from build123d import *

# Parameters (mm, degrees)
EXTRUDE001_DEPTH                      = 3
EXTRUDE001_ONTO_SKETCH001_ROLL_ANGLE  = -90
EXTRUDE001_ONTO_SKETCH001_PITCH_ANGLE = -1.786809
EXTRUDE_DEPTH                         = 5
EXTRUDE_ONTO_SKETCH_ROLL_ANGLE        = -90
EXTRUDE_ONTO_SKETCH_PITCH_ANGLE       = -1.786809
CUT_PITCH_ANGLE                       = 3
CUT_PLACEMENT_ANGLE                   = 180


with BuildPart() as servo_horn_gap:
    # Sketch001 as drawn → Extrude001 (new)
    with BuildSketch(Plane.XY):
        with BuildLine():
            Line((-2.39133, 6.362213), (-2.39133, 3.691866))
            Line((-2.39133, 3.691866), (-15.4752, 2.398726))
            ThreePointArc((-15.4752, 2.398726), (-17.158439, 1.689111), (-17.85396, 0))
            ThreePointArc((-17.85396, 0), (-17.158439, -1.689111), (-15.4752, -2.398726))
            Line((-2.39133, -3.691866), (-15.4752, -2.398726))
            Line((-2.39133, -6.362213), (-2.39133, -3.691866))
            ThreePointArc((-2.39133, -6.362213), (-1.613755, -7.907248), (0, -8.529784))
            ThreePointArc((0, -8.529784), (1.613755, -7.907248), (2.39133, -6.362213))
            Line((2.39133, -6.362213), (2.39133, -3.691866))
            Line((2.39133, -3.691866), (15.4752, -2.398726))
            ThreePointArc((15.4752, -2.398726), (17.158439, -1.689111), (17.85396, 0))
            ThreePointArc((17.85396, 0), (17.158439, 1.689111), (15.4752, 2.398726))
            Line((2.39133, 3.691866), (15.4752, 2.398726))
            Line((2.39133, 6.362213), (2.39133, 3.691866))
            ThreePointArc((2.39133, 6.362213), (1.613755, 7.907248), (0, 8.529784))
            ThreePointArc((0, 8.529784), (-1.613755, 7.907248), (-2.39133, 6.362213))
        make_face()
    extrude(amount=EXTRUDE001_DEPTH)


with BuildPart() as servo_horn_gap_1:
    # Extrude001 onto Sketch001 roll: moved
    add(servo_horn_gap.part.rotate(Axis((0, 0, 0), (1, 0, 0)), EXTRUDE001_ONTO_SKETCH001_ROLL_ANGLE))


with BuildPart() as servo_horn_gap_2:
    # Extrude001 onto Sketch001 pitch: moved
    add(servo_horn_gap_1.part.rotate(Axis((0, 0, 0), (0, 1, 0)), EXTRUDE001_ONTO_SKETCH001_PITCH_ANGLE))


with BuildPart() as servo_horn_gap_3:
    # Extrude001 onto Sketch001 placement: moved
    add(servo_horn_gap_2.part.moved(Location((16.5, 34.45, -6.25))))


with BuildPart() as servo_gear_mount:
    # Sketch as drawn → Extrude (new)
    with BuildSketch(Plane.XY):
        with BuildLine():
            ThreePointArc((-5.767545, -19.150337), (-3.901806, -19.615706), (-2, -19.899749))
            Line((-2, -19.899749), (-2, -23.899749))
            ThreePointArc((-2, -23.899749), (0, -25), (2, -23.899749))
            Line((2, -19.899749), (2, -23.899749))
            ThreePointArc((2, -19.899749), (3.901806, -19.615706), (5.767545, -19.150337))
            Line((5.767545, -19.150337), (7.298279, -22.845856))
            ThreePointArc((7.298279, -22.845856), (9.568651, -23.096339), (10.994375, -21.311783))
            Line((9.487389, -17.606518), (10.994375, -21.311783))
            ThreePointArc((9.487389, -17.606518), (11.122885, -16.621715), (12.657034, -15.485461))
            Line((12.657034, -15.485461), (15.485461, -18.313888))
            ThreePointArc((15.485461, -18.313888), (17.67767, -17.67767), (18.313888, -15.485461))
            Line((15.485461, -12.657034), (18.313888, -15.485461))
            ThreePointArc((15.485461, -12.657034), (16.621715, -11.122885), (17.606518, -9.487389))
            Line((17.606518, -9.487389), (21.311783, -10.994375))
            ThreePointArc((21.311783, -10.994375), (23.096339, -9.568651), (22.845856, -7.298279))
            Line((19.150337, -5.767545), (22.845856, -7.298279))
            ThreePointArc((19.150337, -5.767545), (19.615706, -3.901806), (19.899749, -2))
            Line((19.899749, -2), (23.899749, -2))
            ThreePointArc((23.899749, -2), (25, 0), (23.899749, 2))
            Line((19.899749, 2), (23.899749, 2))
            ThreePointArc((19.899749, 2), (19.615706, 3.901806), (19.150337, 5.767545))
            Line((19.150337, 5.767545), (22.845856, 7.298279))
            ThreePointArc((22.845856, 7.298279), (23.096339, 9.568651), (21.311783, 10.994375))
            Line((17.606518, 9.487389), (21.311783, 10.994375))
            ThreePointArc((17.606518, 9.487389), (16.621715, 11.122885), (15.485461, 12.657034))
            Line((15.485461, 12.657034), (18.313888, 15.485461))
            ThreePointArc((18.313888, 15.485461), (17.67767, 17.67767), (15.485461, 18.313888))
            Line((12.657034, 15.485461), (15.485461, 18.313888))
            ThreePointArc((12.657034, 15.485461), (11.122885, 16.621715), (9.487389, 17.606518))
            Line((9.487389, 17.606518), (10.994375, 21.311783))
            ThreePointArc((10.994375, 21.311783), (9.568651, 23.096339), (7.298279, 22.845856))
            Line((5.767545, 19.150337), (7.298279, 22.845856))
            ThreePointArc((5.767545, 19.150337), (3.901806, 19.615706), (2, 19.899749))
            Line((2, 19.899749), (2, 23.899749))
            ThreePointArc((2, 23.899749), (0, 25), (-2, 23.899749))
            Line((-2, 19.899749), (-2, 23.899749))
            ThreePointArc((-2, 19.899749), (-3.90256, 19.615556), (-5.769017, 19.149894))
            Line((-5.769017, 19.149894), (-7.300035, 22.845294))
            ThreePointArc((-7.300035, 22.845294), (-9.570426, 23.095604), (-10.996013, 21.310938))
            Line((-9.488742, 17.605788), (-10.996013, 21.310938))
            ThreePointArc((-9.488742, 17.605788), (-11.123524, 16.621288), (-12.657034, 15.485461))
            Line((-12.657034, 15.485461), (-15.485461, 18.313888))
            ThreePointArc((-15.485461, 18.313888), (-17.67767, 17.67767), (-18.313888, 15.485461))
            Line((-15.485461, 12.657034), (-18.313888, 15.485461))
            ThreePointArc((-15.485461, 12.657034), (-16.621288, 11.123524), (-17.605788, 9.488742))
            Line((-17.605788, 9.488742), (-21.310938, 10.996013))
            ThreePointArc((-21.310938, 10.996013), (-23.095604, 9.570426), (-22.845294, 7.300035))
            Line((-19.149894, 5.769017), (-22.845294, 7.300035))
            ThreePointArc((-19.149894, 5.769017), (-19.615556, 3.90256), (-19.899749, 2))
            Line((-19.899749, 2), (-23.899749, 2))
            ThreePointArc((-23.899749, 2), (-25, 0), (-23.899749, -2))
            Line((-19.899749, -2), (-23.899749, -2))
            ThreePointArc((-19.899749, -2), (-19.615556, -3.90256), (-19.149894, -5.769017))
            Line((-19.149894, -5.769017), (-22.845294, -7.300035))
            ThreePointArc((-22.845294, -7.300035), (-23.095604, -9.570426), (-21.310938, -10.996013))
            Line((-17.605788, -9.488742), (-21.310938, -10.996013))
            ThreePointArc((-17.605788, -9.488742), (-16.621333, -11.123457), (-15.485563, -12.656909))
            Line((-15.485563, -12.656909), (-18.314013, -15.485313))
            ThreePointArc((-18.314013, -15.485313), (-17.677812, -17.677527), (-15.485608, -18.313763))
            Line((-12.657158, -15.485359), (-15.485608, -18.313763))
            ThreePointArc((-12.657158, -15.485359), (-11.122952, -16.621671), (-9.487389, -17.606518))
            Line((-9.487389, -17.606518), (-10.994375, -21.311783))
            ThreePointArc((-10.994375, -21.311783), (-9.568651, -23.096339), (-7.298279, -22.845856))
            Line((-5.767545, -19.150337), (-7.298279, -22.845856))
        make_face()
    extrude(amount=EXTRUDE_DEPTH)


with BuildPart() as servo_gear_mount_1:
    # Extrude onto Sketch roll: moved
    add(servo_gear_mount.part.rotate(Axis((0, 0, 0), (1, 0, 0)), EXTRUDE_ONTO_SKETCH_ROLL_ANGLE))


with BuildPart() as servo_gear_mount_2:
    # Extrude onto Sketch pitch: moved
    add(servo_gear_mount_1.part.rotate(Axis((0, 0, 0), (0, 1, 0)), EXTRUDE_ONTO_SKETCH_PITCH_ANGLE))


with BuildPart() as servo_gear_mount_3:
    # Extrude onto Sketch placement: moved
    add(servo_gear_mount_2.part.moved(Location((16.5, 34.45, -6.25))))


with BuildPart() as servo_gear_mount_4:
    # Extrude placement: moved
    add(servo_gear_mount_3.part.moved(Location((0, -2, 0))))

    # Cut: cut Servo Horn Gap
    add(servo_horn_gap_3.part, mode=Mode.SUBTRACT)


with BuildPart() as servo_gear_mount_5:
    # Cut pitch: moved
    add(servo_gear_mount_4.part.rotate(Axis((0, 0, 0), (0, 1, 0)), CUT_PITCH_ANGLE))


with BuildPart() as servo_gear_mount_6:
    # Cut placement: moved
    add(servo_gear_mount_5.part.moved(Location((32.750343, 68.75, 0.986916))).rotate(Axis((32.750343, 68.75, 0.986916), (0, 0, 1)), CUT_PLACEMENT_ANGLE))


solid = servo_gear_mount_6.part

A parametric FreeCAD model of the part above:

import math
import FreeCAD as App
import Part
import Sketcher

doc = App.newDocument("Part")
params = doc.addObject("Spreadsheet::Sheet", "Params")
for row, (alias, value) in enumerate([
    ("pad1_length", "3 mm"),
    ("sketch2_width", "4 mm"),
    ("sketch2_width2", "4 mm"),
    ("sketch2_width3", "4 mm"),
    ("sketch2_width4", "4 mm"),
    ("sketch2_height", "4 mm"),
    ("pad2_length", "5 mm"),
], start=1):
    params.set(f"A{row}", alias)
    params.set(f"B{row}", "=" + value)
    params.setAlias(f"B{row}", alias)

body = doc.addObject("PartDesign::Body", "Body")

sketch1 = body.newObject("Sketcher::SketchObject", "Sketch")
sketch1.AttachmentSupport = (doc.getObject("XY_Plane"), [""])
sketch1.MapMode = "FlatFace"
sketch1.addGeometry(Part.LineSegment(App.Vector(-2.39133, 6.362213, 0), App.Vector(-2.39133, 3.691866, 0)), False)
sketch1.addGeometry(Part.LineSegment(App.Vector(-2.39133, 3.691866, 0), App.Vector(-15.4752, 2.398726, 0)), False)
sketch1.addGeometry(Part.ArcOfCircle(Part.Circle(App.Vector(-15.45515, 0, 0), App.Vector(0, 0, 1), 2.39881), math.radians(90.478893), math.radians(180.000003)), False)
sketch1.addGeometry(Part.ArcOfCircle(Part.Circle(App.Vector(-15.45515, 0, 0), App.Vector(0, 0, 1), 2.39881), math.radians(179.999997), math.radians(269.521107)), False)
sketch1.addGeometry(Part.LineSegment(App.Vector(-15.4752, -2.398726, 0), App.Vector(-2.39133, -3.691866, 0)), False)
sketch1.addGeometry(Part.LineSegment(App.Vector(-2.39133, -3.691866, 0), App.Vector(-2.39133, -6.362213, 0)), False)
sketch1.addGeometry(Part.ArcOfCircle(Part.Circle(App.Vector(0.000001, -6.126904, 0), App.Vector(0, 0, 1), 2.40288), math.radians(-174.380132), math.radians(-90.00002)), False)
sketch1.addGeometry(Part.ArcOfCircle(Part.Circle(App.Vector(-0.000001, -6.126904, 0), App.Vector(0, 0, 1), 2.40288), math.radians(-89.99998), math.radians(-5.619868)), False)
sketch1.addGeometry(Part.LineSegment(App.Vector(2.39133, -6.362213, 0), App.Vector(2.39133, -3.691866, 0)), False)
sketch1.addGeometry(Part.LineSegment(App.Vector(2.39133, -3.691866, 0), App.Vector(15.4752, -2.398726, 0)), False)
sketch1.addGeometry(Part.ArcOfCircle(Part.Circle(App.Vector(15.45515, 0, 0), App.Vector(0, 0, 1), 2.39881), math.radians(-89.521107), math.radians(0.000003)), False)
sketch1.addGeometry(Part.ArcOfCircle(Part.Circle(App.Vector(15.45515, 0, 0), App.Vector(0, 0, 1), 2.39881), math.radians(-0.000003), math.radians(89.521107)), False)
sketch1.addGeometry(Part.LineSegment(App.Vector(15.4752, 2.398726, 0), App.Vector(2.39133, 3.691866, 0)), False)
sketch1.addGeometry(Part.LineSegment(App.Vector(2.39133, 3.691866, 0), App.Vector(2.39133, 6.362213, 0)), False)
sketch1.addGeometry(Part.ArcOfCircle(Part.Circle(App.Vector(-0.000001, 6.126904, 0), App.Vector(0, 0, 1), 2.40288), math.radians(5.619868), math.radians(89.99998)), False)
sketch1.addGeometry(Part.ArcOfCircle(Part.Circle(App.Vector(0.000001, 6.126904, 0), App.Vector(0, 0, 1), 2.40288), math.radians(90.00002), math.radians(174.380132)), False)
sketch1.addConstraint(Sketcher.Constraint("Coincident", 0, 2, 1, 1))
sketch1.addConstraint(Sketcher.Constraint("Coincident", 1, 2, 2, 1))
sketch1.addConstraint(Sketcher.Constraint("Tangent", 2, 2, 3, 1))
sketch1.addConstraint(Sketcher.Constraint("Coincident", 3, 2, 4, 1))
sketch1.addConstraint(Sketcher.Constraint("Coincident", 4, 2, 5, 1))
sketch1.addConstraint(Sketcher.Constraint("Coincident", 5, 2, 6, 1))
sketch1.addConstraint(Sketcher.Constraint("Tangent", 6, 2, 7, 1))
sketch1.addConstraint(Sketcher.Constraint("Coincident", 7, 2, 8, 1))
sketch1.addConstraint(Sketcher.Constraint("Coincident", 8, 2, 9, 1))
sketch1.addConstraint(Sketcher.Constraint("Coincident", 9, 2, 10, 1))
sketch1.addConstraint(Sketcher.Constraint("Tangent", 10, 2, 11, 1))
sketch1.addConstraint(Sketcher.Constraint("Coincident", 11, 2, 12, 1))
sketch1.addConstraint(Sketcher.Constraint("Coincident", 12, 2, 13, 1))
sketch1.addConstraint(Sketcher.Constraint("Coincident", 13, 2, 14, 1))
sketch1.addConstraint(Sketcher.Constraint("Tangent", 14, 2, 15, 1))
sketch1.addConstraint(Sketcher.Constraint("Coincident", 15, 2, 0, 1))
sketch1.addConstraint(Sketcher.Constraint("Vertical", 0))
sketch1.addConstraint(Sketcher.Constraint("Vertical", 5))
sketch1.addConstraint(Sketcher.Constraint("Vertical", 8))
sketch1.addConstraint(Sketcher.Constraint("Vertical", 13))
sketch1.addConstraint(Sketcher.Constraint("Equal", 2, 3))
sketch1.addConstraint(Sketcher.Constraint("Equal", 6, 7))
sketch1.addConstraint(Sketcher.Constraint("Equal", 3, 10))
sketch1.addConstraint(Sketcher.Constraint("Equal", 10, 11))
sketch1.addConstraint(Sketcher.Constraint("Equal", 7, 14))
sketch1.addConstraint(Sketcher.Constraint("Equal", 14, 15))
sketch1.addConstraint(Sketcher.Constraint("Symmetric", 2, 3, 10, 3, -1, 1))
sketch1.addConstraint(Sketcher.Constraint("Symmetric", 6, 3, 14, 3, -1, 1))
sketch1.addConstraint(Sketcher.Constraint("Symmetric", 0, 2, 8, 2, -1, 1))
sketch1.addConstraint(Sketcher.Constraint("Symmetric", 4, 2, 12, 2, -1, 1))
sketch1.addConstraint(Sketcher.Constraint("Symmetric", 5, 2, 7, 2, -2))
sketch1.addConstraint(Sketcher.Constraint("Symmetric", 3, 2, 9, 2, -2))
sketch1.addConstraint(Sketcher.Constraint("PointOnObject", 2, 2, -1))
sketch1.addConstraint(Sketcher.Constraint("PointOnObject", 6, 2, -2))
sketch1.addConstraint(Sketcher.Constraint("PointOnObject", 10, 2, -1))
sketch1.addConstraint(Sketcher.Constraint("PointOnObject", 14, 2, -2))
sketch1.addConstraint(Sketcher.Constraint("Parallel", 1, 9))
sketch1.addConstraint(Sketcher.Constraint("Parallel", 4, 12))
sketch1.addConstraint(Sketcher.Constraint("Horizontal", 4, 2, 8, 2))
sketch1.addConstraint(Sketcher.Constraint("Radius", 2, 2.39881))
sketch1.addConstraint(Sketcher.Constraint("Radius", 6, 2.40288))
sketch1.addConstraint(Sketcher.Constraint("DistanceX", 1, 2, -1, 1, 15.4752))
sketch1.addConstraint(Sketcher.Constraint("DistanceX", 2, 3, 10, 3, 30.910301))
sketch1.addConstraint(Sketcher.Constraint("Distance", 1, 13.147618))
sketch1.addConstraint(Sketcher.Constraint("DistanceY", 0, 2, 0, 1, 2.670347))
sketch1.addConstraint(Sketcher.Constraint("DistanceX", 0, 2, -1, 1, 2.39133))
pad1 = body.newObject("PartDesign::Pad", "Pad")
pad1.Profile = sketch1
pad1.setExpression("Length", "Params.pad1_length")
body2 = doc.addObject("PartDesign::Body", "Body001")
doc.recompute()

body.Placement = App.Placement(App.Vector(0, 0, 0), App.Rotation(App.Vector(1, 0, 0), 270))
boolean = body2.newObject("PartDesign::Boolean", "Boolean")
boolean.Type = "Fuse"
boolean.addObjects([body])
body3 = doc.addObject("PartDesign::Body", "Body002")
doc.recompute()

body2.Placement = App.Placement(App.Vector(0, 0, 0), App.Rotation(App.Vector(0, 1, 0), 358.213191))
boolean2 = body3.newObject("PartDesign::Boolean", "Boolean001")
boolean2.Type = "Fuse"
boolean2.addObjects([body2])
body4 = doc.addObject("PartDesign::Body", "Body003")
doc.recompute()

body3.Placement = App.Placement(App.Vector(16.5, 34.45, -6.25), App.Rotation(App.Vector(0, 0, 1), 0))
boolean3 = body4.newObject("PartDesign::Boolean", "Boolean002")
boolean3.Type = "Fuse"
boolean3.addObjects([body3])
body5 = doc.addObject("PartDesign::Body", "Body004")

sketch2 = body5.newObject("Sketcher::SketchObject", "Sketch001")
sketch2.AttachmentSupport = (doc.getObject("XY_Plane004"), [""])
sketch2.MapMode = "FlatFace"
sketch2.addGeometry(Part.ArcOfCircle(Part.Circle(App.Vector(-0.000013, -0.000083, 0), App.Vector(0, 0, 1), 19.999916), math.radians(-106.760863), math.radians(-95.739158)), False)
sketch2.addGeometry(Part.LineSegment(App.Vector(-2, -19.899749, 0), App.Vector(-2, -23.899749, 0)), False)
sketch2.addGeometry(Part.ArcOfCircle(Part.Circle(App.Vector(0, -22.632107, 0), App.Vector(0, 0, 1), 2.367893), math.radians(-147.632628), math.radians(-32.367372)), False)
sketch2.addGeometry(Part.LineSegment(App.Vector(2, -23.899749, 0), App.Vector(2, -19.899749, 0)), False)
sketch2.addGeometry(Part.ArcOfCircle(Part.Circle(App.Vector(0.000013, -0.000083, 0), App.Vector(0, 0, 1), 19.999916), math.radians(-84.260842), math.radians(-73.239137)), False)
sketch2.addGeometry(Part.LineSegment(App.Vector(5.767545, -19.150337, 0), App.Vector(7.298279, -22.845856, 0)), False)
sketch2.addGeometry(Part.ArcOfCircle(Part.Circle(App.Vector(8.660932, -20.909341, 0), App.Vector(0, 0, 1), 2.367893), math.radians(-125.132612), math.radians(-9.785379)), False)
sketch2.addGeometry(Part.LineSegment(App.Vector(10.994375, -21.311783, 0), App.Vector(9.487389, -17.606518, 0)), False)
sketch2.addGeometry(Part.ArcOfCircle(Part.Circle(App.Vector(-0.00012, 0.000176, 0), App.Vector(0, 0, 1), 20.000213), math.radians(-61.681635), math.radians(-50.739223)), False)
sketch2.addGeometry(Part.LineSegment(App.Vector(12.657034, -15.485461, 0), App.Vector(15.485461, -18.313888, 0)), False)
sketch2.addGeometry(Part.ArcOfCircle(Part.Circle(App.Vector(16.003318, -16.003318, 0), App.Vector(0, 0, 1), 2.367891), math.radians(-102.632665), math.radians(12.632665)), False)
sketch2.addGeometry(Part.LineSegment(App.Vector(18.313888, -15.485461, 0), App.Vector(15.485461, -12.657034, 0)), False)
sketch2.addGeometry(Part.ArcOfCircle(Part.Circle(App.Vector(-0.000176, 0.00012, 0), App.Vector(0, 0, 1), 20.000213), math.radians(-39.260777), math.radians(-28.318365)), False)
sketch2.addGeometry(Part.LineSegment(App.Vector(17.606518, -9.487389, 0), App.Vector(21.311783, -10.994375, 0)), False)
sketch2.addGeometry(Part.ArcOfCircle(Part.Circle(App.Vector(20.909341, -8.660932, 0), App.Vector(0, 0, 1), 2.367893), math.radians(-80.214621), math.radians(35.132612)), False)
sketch2.addGeometry(Part.LineSegment(App.Vector(22.845856, -7.298279, 0), App.Vector(19.150337, -5.767545, 0)), False)
sketch2.addGeometry(Part.ArcOfCircle(Part.Circle(App.Vector(0.000083, -0.000013, 0), App.Vector(0, 0, 1), 19.999916), math.radians(-16.760863), math.radians(-5.739158)), False)
sketch2.addGeometry(Part.LineSegment(App.Vector(19.899749, -2, 0), App.Vector(23.899749, -2, 0)), False)
sketch2.addGeometry(Part.ArcOfCircle(Part.Circle(App.Vector(22.632107, 0, 0), App.Vector(0, 0, 1), 2.367893), math.radians(-57.632628), math.radians(57.632628)), False)
sketch2.addGeometry(Part.LineSegment(App.Vector(23.899749, 2, 0), App.Vector(19.899749, 2, 0)), False)
sketch2.addGeometry(Part.ArcOfCircle(Part.Circle(App.Vector(0.000083, 0.000013, 0), App.Vector(0, 0, 1), 19.999916), math.radians(5.739158), math.radians(16.760863)), False)
sketch2.addGeometry(Part.LineSegment(App.Vector(19.150337, 5.767545, 0), App.Vector(22.845856, 7.298279, 0)), False)
sketch2.addGeometry(Part.ArcOfCircle(Part.Circle(App.Vector(20.909341, 8.660932, 0), App.Vector(0, 0, 1), 2.367893), math.radians(-35.132612), math.radians(80.214621)), False)
sketch2.addGeometry(Part.LineSegment(App.Vector(21.311783, 10.994375, 0), App.Vector(17.606518, 9.487389, 0)), False)
sketch2.addGeometry(Part.ArcOfCircle(Part.Circle(App.Vector(-0.000176, -0.00012, 0), App.Vector(0, 0, 1), 20.000213), math.radians(28.318365), math.radians(39.260777)), False)
sketch2.addGeometry(Part.LineSegment(App.Vector(15.485461, 12.657034, 0), App.Vector(18.313888, 15.485461, 0)), False)
sketch2.addGeometry(Part.ArcOfCircle(Part.Circle(App.Vector(16.003318, 16.003318, 0), App.Vector(0, 0, 1), 2.367891), math.radians(-12.632665), math.radians(102.632665)), False)
sketch2.addGeometry(Part.LineSegment(App.Vector(15.485461, 18.313888, 0), App.Vector(12.657034, 15.485461, 0)), False)
sketch2.addGeometry(Part.ArcOfCircle(Part.Circle(App.Vector(-0.00012, -0.000176, 0), App.Vector(0, 0, 1), 20.000213), math.radians(50.739223), math.radians(61.681635)), False)
sketch2.addGeometry(Part.LineSegment(App.Vector(9.487389, 17.606518, 0), App.Vector(10.994375, 21.311783, 0)), False)
sketch2.addGeometry(Part.ArcOfCircle(Part.Circle(App.Vector(8.660932, 20.909341, 0), App.Vector(0, 0, 1), 2.367893), math.radians(9.785379), math.radians(125.132612)), False)
sketch2.addGeometry(Part.LineSegment(App.Vector(7.298279, 22.845856, 0), App.Vector(5.767545, 19.150337, 0)), False)
sketch2.addGeometry(Part.ArcOfCircle(Part.Circle(App.Vector(0.000013, 0.000083, 0), App.Vector(0, 0, 1), 19.999916), math.radians(73.239137), math.radians(84.260842)), False)
sketch2.addGeometry(Part.LineSegment(App.Vector(2, 19.899749, 0), App.Vector(2, 23.899749, 0)), False)
sketch2.addGeometry(Part.ArcOfCircle(Part.Circle(App.Vector(0, 22.632107, 0), App.Vector(0, 0, 1), 2.367893), math.radians(32.367372), math.radians(147.632628)), False)
sketch2.addGeometry(Part.LineSegment(App.Vector(-2, 23.899749, 0), App.Vector(-2, 19.899749, 0)), False)
sketch2.addGeometry(Part.ArcOfCircle(Part.Circle(App.Vector(-0.000007, 0.000042, 0), App.Vector(0, 0, 1), 19.999957), math.radians(95.739163), math.radians(106.76525)), False)
sketch2.addGeometry(Part.LineSegment(App.Vector(-5.769017, 19.149894, 0), App.Vector(-7.300035, 22.845294, 0)), False)
sketch2.addGeometry(Part.ArcOfCircle(Part.Circle(App.Vector(-8.66254, 20.908676, 0), App.Vector(0, 0, 1), 2.367891), math.radians(54.871736), math.radians(170.219052)), False)
sketch2.addGeometry(Part.LineSegment(App.Vector(-10.996013, 21.310938, 0), App.Vector(-9.488742, 17.605788, 0)), False)
sketch2.addGeometry(Part.ArcOfCircle(Part.Circle(App.Vector(0.000007, -0.000015, 0), App.Vector(0, 0, 1), 20.000016), math.radians(118.322705), math.radians(129.260819)), False)
sketch2.addGeometry(Part.LineSegment(App.Vector(-12.657034, 15.485461, 0), App.Vector(-15.485461, 18.313888, 0)), False)
sketch2.addGeometry(Part.ArcOfCircle(Part.Circle(App.Vector(-16.003318, 16.003318, 0), App.Vector(0, 0, 1), 2.367891), math.radians(77.367335), math.radians(192.632665)), False)
sketch2.addGeometry(Part.LineSegment(App.Vector(-18.313888, 15.485461, 0), App.Vector(-15.485461, 12.657034, 0)), False)
sketch2.addGeometry(Part.ArcOfCircle(Part.Circle(App.Vector(0.000015, -0.000007, 0), App.Vector(0, 0, 1), 20.000016), math.radians(140.739181), math.radians(151.677295)), False)
sketch2.addGeometry(Part.LineSegment(App.Vector(-17.605788, 9.488742, 0), App.Vector(-21.310938, 10.996013, 0)), False)
sketch2.addGeometry(Part.ArcOfCircle(Part.Circle(App.Vector(-20.908676, 8.66254, 0), App.Vector(0, 0, 1), 2.367891), math.radians(99.780948), math.radians(215.128264)), False)
sketch2.addGeometry(Part.LineSegment(App.Vector(-22.845294, 7.300035, 0), App.Vector(-19.149894, 5.769017, 0)), False)
sketch2.addGeometry(Part.ArcOfCircle(Part.Circle(App.Vector(-0.000042, 0.000007, 0), App.Vector(0, 0, 1), 19.999957), math.radians(163.23475), math.radians(174.260837)), False)
sketch2.addGeometry(Part.LineSegment(App.Vector(-19.899749, 2, 0), App.Vector(-23.899749, 2, 0)), False)
sketch2.addGeometry(Part.ArcOfCircle(Part.Circle(App.Vector(-22.632107, 0, 0), App.Vector(0, 0, 1), 2.367893), math.radians(122.367372), math.radians(237.632628)), False)
sketch2.addGeometry(Part.LineSegment(App.Vector(-23.899749, -2, 0), App.Vector(-19.899749, -2, 0)), False)
sketch2.addGeometry(Part.ArcOfCircle(Part.Circle(App.Vector(-0.000042, -0.000007, 0), App.Vector(0, 0, 1), 19.999957), math.radians(-174.260837), math.radians(-163.23475)), False)
sketch2.addGeometry(Part.LineSegment(App.Vector(-19.149894, -5.769017, 0), App.Vector(-22.845294, -7.300035, 0)), False)
sketch2.addGeometry(Part.ArcOfCircle(Part.Circle(App.Vector(-20.908676, -8.66254, 0), App.Vector(0, 0, 1), 2.367891), math.radians(144.871736), math.radians(260.219052)), False)
sketch2.addGeometry(Part.LineSegment(App.Vector(-21.310938, -10.996013, 0), App.Vector(-17.605788, -9.488742, 0)), False)
sketch2.addGeometry(Part.ArcOfCircle(Part.Circle(App.Vector(-0.000022, -0.000016, 0), App.Vector(0, 0, 1), 19.999973), math.radians(-151.677305), math.radians(-140.739629)), False)
sketch2.addGeometry(Part.LineSegment(App.Vector(-15.485563, -12.656909, 0), App.Vector(-18.314013, -15.485313, 0)), False)
sketch2.addGeometry(Part.ArcOfCircle(Part.Circle(App.Vector(-16.003446, -16.003188, 0), App.Vector(0, 0, 1), 2.367893), math.radians(167.366903), math.radians(282.632185)), False)
sketch2.addGeometry(Part.LineSegment(App.Vector(-15.485608, -18.313763, 0), App.Vector(-12.657158, -15.485359, 0)), False)
sketch2.addGeometry(Part.ArcOfCircle(Part.Circle(App.Vector(0.000007, 0.000002, 0), App.Vector(0, 0, 1), 20.000006), math.radians(-129.261301), math.radians(-118.318316)), False)
sketch2.addGeometry(Part.LineSegment(App.Vector(-9.487389, -17.606518, 0), App.Vector(-10.994375, -21.311783, 0)), False)
sketch2.addGeometry(Part.ArcOfCircle(Part.Circle(App.Vector(-8.660932, -20.909341, 0), App.Vector(0, 0, 1), 2.367893), math.radians(-170.214621), math.radians(-54.867388)), False)
sketch2.addGeometry(Part.LineSegment(App.Vector(-7.298279, -22.845856, 0), App.Vector(-5.767545, -19.150337, 0)), False)
sketch2.addConstraint(Sketcher.Constraint("Coincident", 0, 2, 1, 1))
sketch2.addConstraint(Sketcher.Constraint("Coincident", 1, 2, 2, 1))
sketch2.addConstraint(Sketcher.Constraint("Coincident", 2, 2, 3, 1))
sketch2.addConstraint(Sketcher.Constraint("Coincident", 3, 2, 4, 1))
sketch2.addConstraint(Sketcher.Constraint("Coincident", 4, 2, 5, 1))
sketch2.addConstraint(Sketcher.Constraint("Coincident", 5, 2, 6, 1))
sketch2.addConstraint(Sketcher.Constraint("Coincident", 6, 2, 7, 1))
sketch2.addConstraint(Sketcher.Constraint("Coincident", 7, 2, 8, 1))
sketch2.addConstraint(Sketcher.Constraint("Coincident", 8, 2, 9, 1))
sketch2.addConstraint(Sketcher.Constraint("Coincident", 9, 2, 10, 1))
sketch2.addConstraint(Sketcher.Constraint("Coincident", 10, 2, 11, 1))
sketch2.addConstraint(Sketcher.Constraint("Coincident", 11, 2, 12, 1))
sketch2.addConstraint(Sketcher.Constraint("Coincident", 12, 2, 13, 1))
sketch2.addConstraint(Sketcher.Constraint("Coincident", 13, 2, 14, 1))
sketch2.addConstraint(Sketcher.Constraint("Coincident", 14, 2, 15, 1))
sketch2.addConstraint(Sketcher.Constraint("Coincident", 15, 2, 16, 1))
sketch2.addConstraint(Sketcher.Constraint("Coincident", 16, 2, 17, 1))
sketch2.addConstraint(Sketcher.Constraint("Coincident", 17, 2, 18, 1))
sketch2.addConstraint(Sketcher.Constraint("Coincident", 18, 2, 19, 1))
sketch2.addConstraint(Sketcher.Constraint("Coincident", 19, 2, 20, 1))
sketch2.addConstraint(Sketcher.Constraint("Coincident", 20, 2, 21, 1))
sketch2.addConstraint(Sketcher.Constraint("Coincident", 21, 2, 22, 1))
sketch2.addConstraint(Sketcher.Constraint("Coincident", 22, 2, 23, 1))
sketch2.addConstraint(Sketcher.Constraint("Coincident", 23, 2, 24, 1))
sketch2.addConstraint(Sketcher.Constraint("Coincident", 24, 2, 25, 1))
sketch2.addConstraint(Sketcher.Constraint("Coincident", 25, 2, 26, 1))
sketch2.addConstraint(Sketcher.Constraint("Coincident", 26, 2, 27, 1))
sketch2.addConstraint(Sketcher.Constraint("Coincident", 27, 2, 28, 1))
sketch2.addConstraint(Sketcher.Constraint("Coincident", 28, 2, 29, 1))
sketch2.addConstraint(Sketcher.Constraint("Coincident", 29, 2, 30, 1))
sketch2.addConstraint(Sketcher.Constraint("Coincident", 30, 2, 31, 1))
sketch2.addConstraint(Sketcher.Constraint("Coincident", 31, 2, 32, 1))
sketch2.addConstraint(Sketcher.Constraint("Coincident", 32, 2, 33, 1))
sketch2.addConstraint(Sketcher.Constraint("Coincident", 33, 2, 34, 1))
sketch2.addConstraint(Sketcher.Constraint("Coincident", 34, 2, 35, 1))
sketch2.addConstraint(Sketcher.Constraint("Coincident", 35, 2, 36, 1))
sketch2.addConstraint(Sketcher.Constraint("Coincident", 36, 2, 37, 1))
sketch2.addConstraint(Sketcher.Constraint("Coincident", 37, 2, 38, 1))
sketch2.addConstraint(Sketcher.Constraint("Coincident", 38, 2, 39, 1))
sketch2.addConstraint(Sketcher.Constraint("Coincident", 39, 2, 40, 1))
sketch2.addConstraint(Sketcher.Constraint("Coincident", 40, 2, 41, 1))
sketch2.addConstraint(Sketcher.Constraint("Coincident", 41, 2, 42, 1))
sketch2.addConstraint(Sketcher.Constraint("Coincident", 42, 2, 43, 1))
sketch2.addConstraint(Sketcher.Constraint("Coincident", 43, 2, 44, 1))
sketch2.addConstraint(Sketcher.Constraint("Coincident", 44, 2, 45, 1))
sketch2.addConstraint(Sketcher.Constraint("Coincident", 45, 2, 46, 1))
sketch2.addConstraint(Sketcher.Constraint("Coincident", 46, 2, 47, 1))
sketch2.addConstraint(Sketcher.Constraint("Coincident", 47, 2, 48, 1))
sketch2.addConstraint(Sketcher.Constraint("Coincident", 48, 2, 49, 1))
sketch2.addConstraint(Sketcher.Constraint("Coincident", 49, 2, 50, 1))
sketch2.addConstraint(Sketcher.Constraint("Coincident", 50, 2, 51, 1))
sketch2.addConstraint(Sketcher.Constraint("Coincident", 51, 2, 52, 1))
sketch2.addConstraint(Sketcher.Constraint("Coincident", 52, 2, 53, 1))
sketch2.addConstraint(Sketcher.Constraint("Coincident", 53, 2, 54, 1))
sketch2.addConstraint(Sketcher.Constraint("Coincident", 54, 2, 55, 1))
sketch2.addConstraint(Sketcher.Constraint("Coincident", 55, 2, 56, 1))
sketch2.addConstraint(Sketcher.Constraint("Coincident", 56, 2, 57, 1))
sketch2.addConstraint(Sketcher.Constraint("Coincident", 57, 2, 58, 1))
sketch2.addConstraint(Sketcher.Constraint("Coincident", 58, 2, 59, 1))
sketch2.addConstraint(Sketcher.Constraint("Coincident", 59, 2, 60, 1))
sketch2.addConstraint(Sketcher.Constraint("Coincident", 60, 2, 61, 1))
sketch2.addConstraint(Sketcher.Constraint("Coincident", 61, 2, 62, 1))
sketch2.addConstraint(Sketcher.Constraint("Coincident", 62, 2, 63, 1))
sketch2.addConstraint(Sketcher.Constraint("Coincident", 63, 2, 0, 1))
sketch2.addConstraint(Sketcher.Constraint("Vertical", 1))
sketch2.addConstraint(Sketcher.Constraint("Vertical", 3))
sketch2.addConstraint(Sketcher.Constraint("Horizontal", 17))
sketch2.addConstraint(Sketcher.Constraint("Horizontal", 19))
sketch2.addConstraint(Sketcher.Constraint("Vertical", 33))
sketch2.addConstraint(Sketcher.Constraint("Vertical", 35))
sketch2.addConstraint(Sketcher.Constraint("Horizontal", 49))
sketch2.addConstraint(Sketcher.Constraint("Horizontal", 51))
sketch2.addConstraint(Sketcher.Constraint("Coincident", 60, 3, -1, 1))
sketch2.addConstraint(Sketcher.Constraint("PointOnObject", 2, 3, -2))
sketch2.addConstraint(Sketcher.Constraint("PointOnObject", 18, 3, -1))
sketch2.addConstraint(Sketcher.Constraint("PointOnObject", 34, 3, -2))
sketch2.addConstraint(Sketcher.Constraint("PointOnObject", 50, 3, -1))
sketch2.addConstraint(Sketcher.Constraint("DistanceX", 17, 1, 17, 2, 4.0))
sketch2.addConstraint(Sketcher.Constraint("DistanceX", 19, 2, 19, 1, 4.0))
sketch2.addConstraint(Sketcher.Constraint("DistanceX", 49, 2, 49, 1, 4.0))
sketch2.addConstraint(Sketcher.Constraint("DistanceX", 51, 1, 51, 2, 4.0))
sketch2.addConstraint(Sketcher.Constraint("DistanceY", 1, 2, 1, 1, 4.0))
sketch2.addConstraint(Sketcher.Constraint("DistanceY", 3, 1, 3, 2, 4.0))
sketch2.addConstraint(Sketcher.Constraint("DistanceY", 33, 1, 33, 2, 4.0))
sketch2.addConstraint(Sketcher.Constraint("DistanceY", 35, 2, 35, 1, 4.0))
sketch2.addConstraint(Sketcher.Constraint("Distance", 5, 4.000001))
sketch2.addConstraint(Sketcher.Constraint("Distance", 7, 3.999999))
sketch2.addConstraint(Sketcher.Constraint("Distance", 9, 4.0))
sketch2.addConstraint(Sketcher.Constraint("Distance", 11, 4.0))
sketch2.addConstraint(Sketcher.Constraint("Distance", 13, 3.999999))
sketch2.addConstraint(Sketcher.Constraint("Distance", 15, 4.000001))
sketch2.addConstraint(Sketcher.Constraint("Distance", 21, 4.000001))
sketch2.addConstraint(Sketcher.Constraint("Distance", 23, 3.999999))
sketch2.addConstraint(Sketcher.Constraint("Distance", 25, 4.0))
sketch2.addConstraint(Sketcher.Constraint("Distance", 27, 4.0))
sketch2.addConstraint(Sketcher.Constraint("Distance", 29, 3.999999))
sketch2.addConstraint(Sketcher.Constraint("Distance", 31, 4.000001))
sketch2.addConstraint(Sketcher.Constraint("Distance", 37, 4.0))
sketch2.addConstraint(Sketcher.Constraint("Distance", 39, 4.0))
sketch2.addConstraint(Sketcher.Constraint("Distance", 41, 4.0))
sketch2.addConstraint(Sketcher.Constraint("Distance", 43, 4.0))
sketch2.addConstraint(Sketcher.Constraint("Distance", 45, 4.0))
sketch2.addConstraint(Sketcher.Constraint("Distance", 47, 4.0))
sketch2.addConstraint(Sketcher.Constraint("Distance", 53, 4.0))
sketch2.addConstraint(Sketcher.Constraint("Distance", 55, 4.0))
sketch2.addConstraint(Sketcher.Constraint("Distance", 57, 4.0))
sketch2.addConstraint(Sketcher.Constraint("Distance", 59, 4.0))
sketch2.addConstraint(Sketcher.Constraint("Distance", 61, 3.999999))
sketch2.addConstraint(Sketcher.Constraint("Distance", 63, 4.000001))
sketch2.addConstraint(Sketcher.Constraint("DistanceX", 0, 2, -1, 1, 2.0))
sketch2.addConstraint(Sketcher.Constraint("DistanceX", -1, 1, 2, 2, 2.0))
sketch2.addConstraint(Sketcher.Constraint("DistanceY", 16, 2, -1, 1, 2.0))
sketch2.addConstraint(Sketcher.Constraint("DistanceY", -1, 1, 18, 2, 2.0))
sketch2.addConstraint(Sketcher.Constraint("DistanceX", -1, 1, 32, 2, 2.0))
sketch2.addConstraint(Sketcher.Constraint("DistanceX", 34, 2, -1, 1, 2.0))
sketch2.addConstraint(Sketcher.Constraint("DistanceY", -1, 1, 48, 2, 2.0))
sketch2.addConstraint(Sketcher.Constraint("DistanceY", 50, 2, -1, 1, 2.0))
sketch2.addConstraint(Sketcher.Constraint("Radius", 10, 2.367891))
sketch2.addConstraint(Sketcher.Constraint("Radius", 26, 2.367891))
sketch2.addConstraint(Sketcher.Constraint("Radius", 38, 2.367891))
sketch2.addConstraint(Sketcher.Constraint("Radius", 42, 2.367891))
sketch2.addConstraint(Sketcher.Constraint("Radius", 46, 2.367891))
sketch2.addConstraint(Sketcher.Constraint("Radius", 54, 2.367891))
sketch2.addConstraint(Sketcher.Constraint("Radius", 0, 19.999916))
sketch2.addConstraint(Sketcher.Constraint("Radius", 2, 2.367893))
sketch2.addConstraint(Sketcher.Constraint("Radius", 4, 19.999916))
sketch2.addConstraint(Sketcher.Constraint("Radius", 6, 2.367893))
sketch2.addConstraint(Sketcher.Constraint("Radius", 8, 20.000213))
sketch2.addConstraint(Sketcher.Constraint("Radius", 12, 20.000213))
sketch2.addConstraint(Sketcher.Constraint("Radius", 14, 2.367893))
sketch2.addConstraint(Sketcher.Constraint("Radius", 16, 19.999916))
sketch2.addConstraint(Sketcher.Constraint("Radius", 18, 2.367893))
sketch2.addConstraint(Sketcher.Constraint("Radius", 20, 19.999916))
sketch2.addConstraint(Sketcher.Constraint("Radius", 22, 2.367893))
sketch2.addConstraint(Sketcher.Constraint("Radius", 24, 20.000213))
sketch2.addConstraint(Sketcher.Constraint("Radius", 28, 20.000213))
sketch2.addConstraint(Sketcher.Constraint("Radius", 30, 2.367893))
sketch2.addConstraint(Sketcher.Constraint("Radius", 32, 19.999916))
sketch2.addConstraint(Sketcher.Constraint("Radius", 34, 2.367893))
sketch2.addConstraint(Sketcher.Constraint("Radius", 36, 19.999957))
sketch2.addConstraint(Sketcher.Constraint("Radius", 40, 20.000016))
sketch2.addConstraint(Sketcher.Constraint("Radius", 44, 20.000016))
sketch2.addConstraint(Sketcher.Constraint("Radius", 48, 19.999957))
sketch2.addConstraint(Sketcher.Constraint("Radius", 50, 2.367893))
sketch2.addConstraint(Sketcher.Constraint("Radius", 52, 19.999957))
sketch2.addConstraint(Sketcher.Constraint("Radius", 56, 19.999973))
sketch2.addConstraint(Sketcher.Constraint("Radius", 58, 2.367893))
sketch2.addConstraint(Sketcher.Constraint("Radius", 60, 20.000006))
sketch2.addConstraint(Sketcher.Constraint("Radius", 62, 2.367893))
sketch2.addConstraint(Sketcher.Constraint("DistanceY", 6, 3, -1, 1, 20.909341))
sketch2.addConstraint(Sketcher.Constraint("DistanceX", 8, 3, -1, 1, 0.00012))
sketch2.addConstraint(Sketcher.Constraint("DistanceY", -1, 1, 12, 3, 0.00012))
sketch2.addConstraint(Sketcher.Constraint("DistanceX", -1, 1, 14, 3, 20.909341))
sketch2.addConstraint(Sketcher.Constraint("DistanceX", -1, 1, 22, 3, 20.909341))
sketch2.addConstraint(Sketcher.Constraint("DistanceY", 24, 3, -1, 1, 0.00012))
sketch2.addConstraint(Sketcher.Constraint("DistanceX", 28, 3, -1, 1, 0.00012))
sketch2.addConstraint(Sketcher.Constraint("DistanceY", -1, 1, 30, 3, 20.909341))
sketch2.addConstraint(Sketcher.Constraint("DistanceX", 38, 3, -1, 1, 8.66254))
sketch2.addConstraint(Sketcher.Constraint("DistanceY", -1, 1, 46, 3, 8.66254))
sketch2.addConstraint(Sketcher.Constraint("DistanceY", 54, 3, -1, 1, 8.66254))
sketch2.addConstraint(Sketcher.Constraint("DistanceY", 62, 3, -1, 1, 20.909341))
sketch2.addConstraint(Sketcher.Constraint("DistanceY", 0, 2, -1, 1, 19.899749))
sketch2.addConstraint(Sketcher.Constraint("DistanceX", -1, 1, 5, 2, 7.298279))
sketch2.addConstraint(Sketcher.Constraint("DistanceX", -1, 1, 7, 2, 9.487389))
sketch2.addConstraint(Sketcher.Constraint("DistanceY", 7, 2, -1, 1, 17.606518))
sketch2.addConstraint(Sketcher.Constraint("DistanceY", 8, 2, -1, 1, 15.485461))
sketch2.addConstraint(Sketcher.Constraint("DistanceX", -1, 1, 9, 2, 15.485461))
sketch2.addConstraint(Sketcher.Constraint("DistanceY", 10, 2, -1, 1, 15.485461))
sketch2.addConstraint(Sketcher.Constraint("DistanceX", -1, 1, 11, 2, 15.485461))
sketch2.addConstraint(Sketcher.Constraint("DistanceY", 12, 2, -1, 1, 9.487389))
sketch2.addConstraint(Sketcher.Constraint("DistanceY", 14, 2, -1, 1, 7.298279))
sketch2.addConstraint(Sketcher.Constraint("DistanceX", -1, 1, 16, 2, 19.899749))
sketch2.addConstraint(Sketcher.Constraint("DistanceY", -1, 1, 21, 2, 7.298279))
sketch2.addConstraint(Sketcher.Constraint("DistanceX", -1, 1, 23, 2, 17.606518))
sketch2.addConstraint(Sketcher.Constraint("DistanceY", -1, 1, 23, 2, 9.487389))
sketch2.addConstraint(Sketcher.Constraint("DistanceX", -1, 1, 24, 2, 15.485461))
sketch2.addConstraint(Sketcher.Constraint("DistanceY", -1, 1, 25, 2, 15.485461))
sketch2.addConstraint(Sketcher.Constraint("DistanceX", -1, 1, 26, 2, 15.485461))
sketch2.addConstraint(Sketcher.Constraint("DistanceY", -1, 1, 27, 2, 15.485461))
sketch2.addConstraint(Sketcher.Constraint("DistanceX", -1, 1, 28, 2, 9.487389))
sketch2.addConstraint(Sketcher.Constraint("DistanceX", -1, 1, 30, 2, 7.298279))
sketch2.addConstraint(Sketcher.Constraint("DistanceY", -1, 1, 32, 2, 19.899749))
sketch2.addConstraint(Sketcher.Constraint("DistanceY", -1, 1, 38, 2, 21.310938))
sketch2.addConstraint(Sketcher.Constraint("DistanceY", -1, 1, 39, 2, 17.605788))
sketch2.addConstraint(Sketcher.Constraint("DistanceY", -1, 1, 40, 2, 15.485461))
sketch2.addConstraint(Sketcher.Constraint("DistanceX", 41, 2, -1, 1, 15.485461))
sketch2.addConstraint(Sketcher.Constraint("DistanceY", -1, 1, 42, 2, 15.485461))
sketch2.addConstraint(Sketcher.Constraint("DistanceX", 43, 2, -1, 1, 15.485461))
sketch2.addConstraint(Sketcher.Constraint("DistanceY", -1, 1, 44, 2, 9.488742))
sketch2.addConstraint(Sketcher.Constraint("DistanceX", 45, 2, -1, 1, 21.310938))
sketch2.addConstraint(Sketcher.Constraint("DistanceX", 48, 2, -1, 1, 19.899749))
sketch2.addConstraint(Sketcher.Constraint("DistanceX", 54, 2, -1, 1, 21.310938))
sketch2.addConstraint(Sketcher.Constraint("DistanceX", 55, 2, -1, 1, 17.605788))
sketch2.addConstraint(Sketcher.Constraint("DistanceY", 56, 2, -1, 1, 12.656909))
sketch2.addConstraint(Sketcher.Constraint("DistanceX", 58, 2, -1, 1, 15.485608))
sketch2.addConstraint(Sketcher.Constraint("DistanceX", 59, 2, -1, 1, 12.657158))
sketch2.addConstraint(Sketcher.Constraint("DistanceX", 60, 2, -1, 1, 9.487389))
sketch2.addConstraint(Sketcher.Constraint("DistanceX", 62, 2, -1, 1, 7.298279))
sketch2.addConstraint(Sketcher.Constraint("DistanceX", -1, 1, 6, 3, 8.660932))
sketch2.addConstraint(Sketcher.Constraint("DistanceX", -1, 1, 10, 3, 16.003318))
sketch2.addConstraint(Sketcher.Constraint("DistanceY", 14, 3, -1, 1, 8.660932))
sketch2.addConstraint(Sketcher.Constraint("DistanceY", -1, 1, 22, 3, 8.660932))
sketch2.addConstraint(Sketcher.Constraint("DistanceX", -1, 1, 26, 3, 16.003318))
sketch2.addConstraint(Sketcher.Constraint("DistanceX", -1, 1, 30, 3, 8.660932))
sketch2.addConstraint(Sketcher.Constraint("DistanceY", -1, 1, 38, 3, 20.908676))
sketch2.addConstraint(Sketcher.Constraint("DistanceX", 42, 3, -1, 1, 16.003318))
sketch2.addConstraint(Sketcher.Constraint("DistanceY", -1, 1, 42, 3, 16.003318))
sketch2.addConstraint(Sketcher.Constraint("DistanceX", 46, 3, -1, 1, 20.908676))
sketch2.addConstraint(Sketcher.Constraint("DistanceX", 54, 3, -1, 1, 20.908676))
sketch2.addConstraint(Sketcher.Constraint("DistanceX", 58, 3, -1, 1, 16.003446))
sketch2.addConstraint(Sketcher.Constraint("DistanceX", 62, 3, -1, 1, 8.660932))
sketch2.addConstraint(Sketcher.Constraint("DistanceX", -1, 1, 4, 2, 5.767545))
sketch2.addConstraint(Sketcher.Constraint("DistanceX", -1, 1, 15, 2, 19.150337))
sketch2.addConstraint(Sketcher.Constraint("DistanceX", -1, 1, 20, 2, 19.150337))
sketch2.addConstraint(Sketcher.Constraint("DistanceX", -1, 1, 31, 2, 5.767545))
sketch2.addConstraint(Sketcher.Constraint("DistanceX", 36, 2, -1, 1, 5.769017))
sketch2.addConstraint(Sketcher.Constraint("DistanceY", -1, 1, 36, 2, 19.149894))
sketch2.addConstraint(Sketcher.Constraint("DistanceX", 46, 2, -1, 1, 22.845294))
sketch2.addConstraint(Sketcher.Constraint("DistanceX", 47, 2, -1, 1, 19.149894))
sketch2.addConstraint(Sketcher.Constraint("DistanceX", 52, 2, -1, 1, 19.149894))
sketch2.addConstraint(Sketcher.Constraint("DistanceY", 52, 2, -1, 1, 5.769017))
sketch2.addConstraint(Sketcher.Constraint("DistanceX", 56, 2, -1, 1, 15.485563))
sketch2.addConstraint(Sketcher.Constraint("DistanceX", 63, 2, -1, 1, 5.767545))
sketch2.setExpression("Constraints[77]", "Params.sketch2_width")
sketch2.setExpression("Constraints[78]", "Params.sketch2_width2")
sketch2.setExpression("Constraints[79]", "Params.sketch2_width3")
sketch2.setExpression("Constraints[80]", "Params.sketch2_width4")
sketch2.setExpression("Constraints[81]", "Params.sketch2_height")
pad2 = body5.newObject("PartDesign::Pad", "Pad001")
pad2.Profile = sketch2
pad2.setExpression("Length", "Params.pad2_length")
body6 = doc.addObject("PartDesign::Body", "Body005")
doc.recompute()

body5.Placement = App.Placement(App.Vector(0, 0, 0), App.Rotation(App.Vector(1, 0, 0), 270))
boolean4 = body6.newObject("PartDesign::Boolean", "Boolean003")
boolean4.Type = "Fuse"
boolean4.addObjects([body5])
body7 = doc.addObject("PartDesign::Body", "Body006")
doc.recompute()

body6.Placement = App.Placement(App.Vector(0, 0, 0), App.Rotation(App.Vector(0, 1, 0), 358.213191))
boolean5 = body7.newObject("PartDesign::Boolean", "Boolean004")
boolean5.Type = "Fuse"
boolean5.addObjects([body6])
body8 = doc.addObject("PartDesign::Body", "Body007")
doc.recompute()

body7.Placement = App.Placement(App.Vector(16.5, 34.45, -6.25), App.Rotation(App.Vector(0, 0, 1), 0))
boolean6 = body8.newObject("PartDesign::Boolean", "Boolean005")
boolean6.Type = "Fuse"
boolean6.addObjects([body7])
body9 = doc.addObject("PartDesign::Body", "Body008")
doc.recompute()

body8.Placement = App.Placement(App.Vector(0, -2, 0), App.Rotation(App.Vector(0, 0, 1), 0))
boolean7 = body9.newObject("PartDesign::Boolean", "Boolean006")
boolean7.Type = "Fuse"
boolean7.addObjects([body8])
doc.recompute()

boolean8 = body9.newObject("PartDesign::Boolean", "Boolean007")
boolean8.Type = "Cut"
boolean8.addObjects([body4])
body10 = doc.addObject("PartDesign::Body", "Body009")
doc.recompute()

body9.Placement = App.Placement(App.Vector(0, 0, 0), App.Rotation(App.Vector(0, 1, 0), 3))
boolean9 = body10.newObject("PartDesign::Boolean", "Boolean008")
boolean9.Type = "Fuse"
boolean9.addObjects([body9])
body11 = doc.addObject("PartDesign::Body", "Body010")
doc.recompute()

body10.Placement = App.Placement(App.Vector(32.750343, 68.75, 0.986916), App.Rotation(App.Vector(0, 0, 1), 180))
boolean10 = body11.newObject("PartDesign::Boolean", "Boolean009")
boolean10.Type = "Fuse"
boolean10.addObjects([body10])

doc.recompute()
